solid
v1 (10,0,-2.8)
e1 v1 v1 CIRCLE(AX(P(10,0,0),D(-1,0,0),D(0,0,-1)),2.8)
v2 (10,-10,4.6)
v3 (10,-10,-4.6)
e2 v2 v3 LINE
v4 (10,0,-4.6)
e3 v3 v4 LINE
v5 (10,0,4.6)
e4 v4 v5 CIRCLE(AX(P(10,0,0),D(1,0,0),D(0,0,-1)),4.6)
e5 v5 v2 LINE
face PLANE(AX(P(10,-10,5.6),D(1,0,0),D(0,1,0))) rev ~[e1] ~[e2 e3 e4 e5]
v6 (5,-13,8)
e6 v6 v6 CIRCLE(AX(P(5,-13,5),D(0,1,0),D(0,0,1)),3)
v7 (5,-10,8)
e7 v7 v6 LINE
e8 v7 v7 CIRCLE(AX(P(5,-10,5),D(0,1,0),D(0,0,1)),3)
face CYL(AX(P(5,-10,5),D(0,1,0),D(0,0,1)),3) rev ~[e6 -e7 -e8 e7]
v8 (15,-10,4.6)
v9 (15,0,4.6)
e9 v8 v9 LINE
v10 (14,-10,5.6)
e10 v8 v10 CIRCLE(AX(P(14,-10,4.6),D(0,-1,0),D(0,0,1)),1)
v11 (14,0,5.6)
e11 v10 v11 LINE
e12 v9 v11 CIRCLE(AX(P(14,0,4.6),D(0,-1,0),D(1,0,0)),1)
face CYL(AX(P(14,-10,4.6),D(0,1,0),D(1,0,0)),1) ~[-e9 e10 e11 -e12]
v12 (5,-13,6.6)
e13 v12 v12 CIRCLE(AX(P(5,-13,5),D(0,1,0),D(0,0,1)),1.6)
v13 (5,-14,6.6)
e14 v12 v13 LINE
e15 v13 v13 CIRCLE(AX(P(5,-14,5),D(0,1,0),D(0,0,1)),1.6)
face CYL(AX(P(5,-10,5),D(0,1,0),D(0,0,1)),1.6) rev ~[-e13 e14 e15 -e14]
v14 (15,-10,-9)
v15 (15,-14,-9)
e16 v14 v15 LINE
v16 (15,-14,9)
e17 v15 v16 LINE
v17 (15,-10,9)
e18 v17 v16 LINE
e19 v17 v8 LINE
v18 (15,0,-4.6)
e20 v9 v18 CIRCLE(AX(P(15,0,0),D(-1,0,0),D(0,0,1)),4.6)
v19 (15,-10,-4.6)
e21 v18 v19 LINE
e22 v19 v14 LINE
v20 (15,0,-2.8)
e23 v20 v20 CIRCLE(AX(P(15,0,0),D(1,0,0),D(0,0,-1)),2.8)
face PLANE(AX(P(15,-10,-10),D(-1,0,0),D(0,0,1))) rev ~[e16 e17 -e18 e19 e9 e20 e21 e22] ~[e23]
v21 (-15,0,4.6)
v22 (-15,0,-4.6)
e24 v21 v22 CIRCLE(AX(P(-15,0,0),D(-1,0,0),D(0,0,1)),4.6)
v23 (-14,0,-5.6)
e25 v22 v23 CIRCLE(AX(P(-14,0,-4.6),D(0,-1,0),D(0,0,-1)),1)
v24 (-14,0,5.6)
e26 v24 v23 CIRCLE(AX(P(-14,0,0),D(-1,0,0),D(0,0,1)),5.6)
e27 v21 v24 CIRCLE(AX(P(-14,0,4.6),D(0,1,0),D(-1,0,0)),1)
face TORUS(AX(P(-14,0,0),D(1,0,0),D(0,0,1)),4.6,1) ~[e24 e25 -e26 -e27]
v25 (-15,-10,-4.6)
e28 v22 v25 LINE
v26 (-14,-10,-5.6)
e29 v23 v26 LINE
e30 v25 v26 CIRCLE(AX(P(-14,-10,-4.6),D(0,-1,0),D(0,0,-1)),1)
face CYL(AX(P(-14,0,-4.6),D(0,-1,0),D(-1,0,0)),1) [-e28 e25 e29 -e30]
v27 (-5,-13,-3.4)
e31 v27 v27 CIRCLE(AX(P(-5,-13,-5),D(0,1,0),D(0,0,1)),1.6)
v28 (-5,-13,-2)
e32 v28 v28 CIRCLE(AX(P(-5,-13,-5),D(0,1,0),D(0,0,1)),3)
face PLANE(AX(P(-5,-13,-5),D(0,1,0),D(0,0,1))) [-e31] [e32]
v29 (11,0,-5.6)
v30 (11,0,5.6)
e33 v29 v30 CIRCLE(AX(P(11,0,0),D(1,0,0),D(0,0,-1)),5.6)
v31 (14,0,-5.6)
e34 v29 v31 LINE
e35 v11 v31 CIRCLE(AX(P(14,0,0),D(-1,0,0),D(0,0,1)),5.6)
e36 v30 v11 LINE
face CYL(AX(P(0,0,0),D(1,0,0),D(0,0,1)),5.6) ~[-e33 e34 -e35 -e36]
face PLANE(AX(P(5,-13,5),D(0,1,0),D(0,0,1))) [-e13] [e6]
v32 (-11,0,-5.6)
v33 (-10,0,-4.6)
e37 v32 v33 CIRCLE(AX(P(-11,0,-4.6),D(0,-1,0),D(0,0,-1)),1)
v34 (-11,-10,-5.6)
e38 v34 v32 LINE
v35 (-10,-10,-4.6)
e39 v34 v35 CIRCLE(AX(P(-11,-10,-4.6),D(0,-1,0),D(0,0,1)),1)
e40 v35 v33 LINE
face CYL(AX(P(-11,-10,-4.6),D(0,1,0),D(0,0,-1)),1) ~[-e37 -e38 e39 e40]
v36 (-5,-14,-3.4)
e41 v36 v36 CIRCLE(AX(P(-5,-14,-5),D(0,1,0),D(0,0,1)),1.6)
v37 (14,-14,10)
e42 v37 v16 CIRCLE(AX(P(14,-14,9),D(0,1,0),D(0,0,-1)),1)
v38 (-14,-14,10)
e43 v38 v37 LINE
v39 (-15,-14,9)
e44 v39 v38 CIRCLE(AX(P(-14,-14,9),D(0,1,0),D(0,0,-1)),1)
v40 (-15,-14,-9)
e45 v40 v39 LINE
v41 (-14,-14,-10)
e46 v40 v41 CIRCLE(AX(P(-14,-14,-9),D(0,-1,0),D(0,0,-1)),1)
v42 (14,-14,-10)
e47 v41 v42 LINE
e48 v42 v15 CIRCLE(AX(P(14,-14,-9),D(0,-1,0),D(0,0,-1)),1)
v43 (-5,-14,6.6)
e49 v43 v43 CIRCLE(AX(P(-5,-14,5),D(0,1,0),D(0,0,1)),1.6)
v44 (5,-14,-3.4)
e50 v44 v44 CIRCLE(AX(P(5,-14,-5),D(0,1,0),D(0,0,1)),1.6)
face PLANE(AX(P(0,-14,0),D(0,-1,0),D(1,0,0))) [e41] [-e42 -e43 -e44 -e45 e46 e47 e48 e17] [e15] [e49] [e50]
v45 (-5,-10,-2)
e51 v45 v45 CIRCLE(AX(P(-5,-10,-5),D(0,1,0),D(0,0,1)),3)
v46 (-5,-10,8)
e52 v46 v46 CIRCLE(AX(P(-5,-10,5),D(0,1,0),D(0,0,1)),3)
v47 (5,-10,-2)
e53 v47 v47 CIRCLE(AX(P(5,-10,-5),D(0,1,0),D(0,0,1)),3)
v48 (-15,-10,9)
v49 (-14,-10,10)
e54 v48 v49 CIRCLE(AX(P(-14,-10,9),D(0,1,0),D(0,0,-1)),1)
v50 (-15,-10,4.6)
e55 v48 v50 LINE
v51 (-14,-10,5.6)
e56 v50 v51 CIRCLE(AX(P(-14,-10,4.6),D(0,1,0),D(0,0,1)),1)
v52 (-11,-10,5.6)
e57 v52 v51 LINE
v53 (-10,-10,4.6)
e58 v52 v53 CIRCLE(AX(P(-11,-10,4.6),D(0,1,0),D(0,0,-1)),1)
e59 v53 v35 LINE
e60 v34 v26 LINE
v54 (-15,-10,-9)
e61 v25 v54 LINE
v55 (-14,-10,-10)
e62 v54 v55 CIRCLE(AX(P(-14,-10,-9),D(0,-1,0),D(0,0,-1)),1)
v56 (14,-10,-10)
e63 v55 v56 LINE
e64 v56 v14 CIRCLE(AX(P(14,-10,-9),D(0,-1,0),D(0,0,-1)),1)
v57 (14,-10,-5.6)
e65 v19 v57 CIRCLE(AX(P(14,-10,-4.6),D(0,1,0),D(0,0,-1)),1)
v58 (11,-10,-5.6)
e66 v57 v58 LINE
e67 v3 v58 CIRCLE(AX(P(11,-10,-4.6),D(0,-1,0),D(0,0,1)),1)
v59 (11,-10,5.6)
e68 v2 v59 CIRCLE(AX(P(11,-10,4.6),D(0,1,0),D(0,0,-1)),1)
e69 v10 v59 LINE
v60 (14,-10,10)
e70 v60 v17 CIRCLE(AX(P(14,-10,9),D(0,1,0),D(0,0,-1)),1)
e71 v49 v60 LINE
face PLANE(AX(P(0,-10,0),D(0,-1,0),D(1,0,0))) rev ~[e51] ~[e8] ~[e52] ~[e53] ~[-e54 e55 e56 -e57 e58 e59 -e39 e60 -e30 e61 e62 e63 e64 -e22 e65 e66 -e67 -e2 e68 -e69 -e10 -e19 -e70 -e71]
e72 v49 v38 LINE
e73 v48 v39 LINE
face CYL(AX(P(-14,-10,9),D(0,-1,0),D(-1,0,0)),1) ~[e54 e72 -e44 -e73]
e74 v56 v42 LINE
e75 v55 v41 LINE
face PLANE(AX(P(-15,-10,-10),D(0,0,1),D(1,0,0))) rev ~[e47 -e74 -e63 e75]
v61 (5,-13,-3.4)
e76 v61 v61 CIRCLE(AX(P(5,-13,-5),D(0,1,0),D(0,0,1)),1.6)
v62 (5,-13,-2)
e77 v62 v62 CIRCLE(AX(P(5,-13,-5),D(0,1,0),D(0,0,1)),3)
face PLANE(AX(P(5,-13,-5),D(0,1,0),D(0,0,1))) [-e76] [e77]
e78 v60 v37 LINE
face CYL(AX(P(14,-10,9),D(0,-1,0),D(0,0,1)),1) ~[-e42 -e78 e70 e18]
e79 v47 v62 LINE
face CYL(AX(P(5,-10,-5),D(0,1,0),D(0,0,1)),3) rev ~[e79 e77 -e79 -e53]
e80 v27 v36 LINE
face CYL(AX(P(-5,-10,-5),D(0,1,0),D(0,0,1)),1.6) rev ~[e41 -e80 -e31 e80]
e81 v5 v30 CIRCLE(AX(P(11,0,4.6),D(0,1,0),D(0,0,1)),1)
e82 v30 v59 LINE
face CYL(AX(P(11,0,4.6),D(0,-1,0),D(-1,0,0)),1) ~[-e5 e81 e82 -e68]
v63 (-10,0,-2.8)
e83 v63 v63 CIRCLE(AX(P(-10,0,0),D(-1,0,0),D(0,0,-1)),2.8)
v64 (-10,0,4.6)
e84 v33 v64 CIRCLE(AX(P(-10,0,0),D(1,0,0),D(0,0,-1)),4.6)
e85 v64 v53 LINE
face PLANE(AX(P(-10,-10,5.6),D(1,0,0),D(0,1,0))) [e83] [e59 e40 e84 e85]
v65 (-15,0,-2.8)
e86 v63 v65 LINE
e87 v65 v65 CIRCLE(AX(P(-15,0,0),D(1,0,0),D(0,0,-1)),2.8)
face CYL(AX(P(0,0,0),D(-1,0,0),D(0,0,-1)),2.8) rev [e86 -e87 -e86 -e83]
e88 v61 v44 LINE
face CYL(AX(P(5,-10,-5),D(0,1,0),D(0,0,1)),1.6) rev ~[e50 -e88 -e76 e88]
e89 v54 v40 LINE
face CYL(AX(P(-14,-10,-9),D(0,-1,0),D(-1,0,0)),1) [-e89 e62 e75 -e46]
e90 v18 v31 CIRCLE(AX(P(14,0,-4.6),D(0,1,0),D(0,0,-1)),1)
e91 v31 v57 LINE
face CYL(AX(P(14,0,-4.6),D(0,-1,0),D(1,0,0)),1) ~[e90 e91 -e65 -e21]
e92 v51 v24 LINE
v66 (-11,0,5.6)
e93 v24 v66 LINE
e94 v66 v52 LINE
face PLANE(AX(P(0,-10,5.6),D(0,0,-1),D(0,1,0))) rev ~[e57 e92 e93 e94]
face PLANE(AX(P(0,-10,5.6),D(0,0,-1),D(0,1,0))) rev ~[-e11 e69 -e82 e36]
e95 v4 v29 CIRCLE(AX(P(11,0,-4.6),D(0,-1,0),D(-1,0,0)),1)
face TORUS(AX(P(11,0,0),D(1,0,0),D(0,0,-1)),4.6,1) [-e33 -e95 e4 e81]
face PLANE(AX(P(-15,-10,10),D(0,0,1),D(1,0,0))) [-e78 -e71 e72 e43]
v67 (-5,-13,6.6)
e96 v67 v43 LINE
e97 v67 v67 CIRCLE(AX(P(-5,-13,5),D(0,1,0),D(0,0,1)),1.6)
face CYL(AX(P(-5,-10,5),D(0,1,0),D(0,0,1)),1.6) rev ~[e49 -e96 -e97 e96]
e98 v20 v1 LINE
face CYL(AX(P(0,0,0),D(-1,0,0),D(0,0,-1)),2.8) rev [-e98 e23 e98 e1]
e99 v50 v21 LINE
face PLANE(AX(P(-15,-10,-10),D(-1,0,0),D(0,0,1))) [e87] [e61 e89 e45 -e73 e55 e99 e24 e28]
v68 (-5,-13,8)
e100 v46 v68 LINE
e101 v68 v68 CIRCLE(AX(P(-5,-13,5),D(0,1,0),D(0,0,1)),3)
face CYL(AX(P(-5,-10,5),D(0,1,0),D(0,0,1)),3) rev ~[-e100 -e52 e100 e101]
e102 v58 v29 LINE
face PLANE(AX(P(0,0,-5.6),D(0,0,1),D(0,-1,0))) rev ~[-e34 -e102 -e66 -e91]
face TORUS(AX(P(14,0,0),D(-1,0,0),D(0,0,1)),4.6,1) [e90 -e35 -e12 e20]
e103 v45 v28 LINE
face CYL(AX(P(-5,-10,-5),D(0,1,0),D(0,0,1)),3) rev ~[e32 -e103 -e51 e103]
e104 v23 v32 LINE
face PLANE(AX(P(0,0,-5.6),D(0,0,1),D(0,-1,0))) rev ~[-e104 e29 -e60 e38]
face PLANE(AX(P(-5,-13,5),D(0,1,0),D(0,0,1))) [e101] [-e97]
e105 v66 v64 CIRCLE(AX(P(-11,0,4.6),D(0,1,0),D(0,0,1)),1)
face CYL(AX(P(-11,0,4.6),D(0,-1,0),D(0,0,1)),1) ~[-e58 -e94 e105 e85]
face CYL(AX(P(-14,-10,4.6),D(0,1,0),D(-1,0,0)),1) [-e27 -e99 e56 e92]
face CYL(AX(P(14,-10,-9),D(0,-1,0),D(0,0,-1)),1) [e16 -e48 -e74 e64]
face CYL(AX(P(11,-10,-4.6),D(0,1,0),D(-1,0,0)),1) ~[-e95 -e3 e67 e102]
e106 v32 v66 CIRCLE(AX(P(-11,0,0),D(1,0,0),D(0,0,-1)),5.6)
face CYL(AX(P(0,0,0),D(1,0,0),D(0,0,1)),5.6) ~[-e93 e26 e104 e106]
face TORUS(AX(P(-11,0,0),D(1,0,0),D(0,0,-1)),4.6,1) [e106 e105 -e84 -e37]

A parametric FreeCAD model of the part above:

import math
import FreeCAD as App
import Part
import Sketcher
from FreeCAD import Vector


def edges_at(feature, points):
    """Names of the edges that pass closest to the given points."""
    edges = feature.Shape.Edges
    near = lambda p: min(range(len(edges)), key=lambda i: edges[i].distToShape(Part.Vertex(*p))[0])
    return sorted({f"Edge{near(p) + 1}" for p in points})

doc = App.newDocument("Part")
body = doc.addObject("PartDesign::Body", "Body")

sketch1 = body.newObject("Sketcher::SketchObject", "Sketch")
sketch1.AttachmentSupport = (doc.getObject("YZ_Plane"), [""])
sketch1.MapMode = "FlatFace"
sketch1.addGeometry(Part.LineSegment(Vector(-10, -5.6, 0), Vector(0, -5.6, 0)), False)
sketch1.addGeometry(Part.ArcOfCircle(Part.Circle(Vector(0, 0, 0), Vector(0, 0, 1), 5.6), math.radians(-90), math.radians(90)), False)
sketch1.addGeometry(Part.LineSegment(Vector(0, 5.6, 0), Vector(-10, 5.6, 0)), False)
sketch1.addGeometry(Part.LineSegment(Vector(-10, 5.6, 0), Vector(-10, -5.6, 0)), False)
sketch1.addGeometry(Part.Circle(Vector(0, 0, 0), Vector(0, 0, 1), 2.8), False)
sketch1.addConstraint(Sketcher.Constraint("Tangent", 0, 2, 1, 1))
sketch1.addConstraint(Sketcher.Constraint("Tangent", 1, 2, 2, 1))
sketch1.addConstraint(Sketcher.Constraint("Coincident", 2, 2, 3, 1))
sketch1.addConstraint(Sketcher.Constraint("Coincident", 3, 2, 0, 1))
sketch1.addConstraint(Sketcher.Constraint("Horizontal", 0))
sketch1.addConstraint(Sketcher.Constraint("Horizontal", 2))
sketch1.addConstraint(Sketcher.Constraint("Vertical", 3))
sketch1.addConstraint(Sketcher.Constraint("Coincident", 1, 3, -1, 1))
sketch1.addConstraint(Sketcher.Constraint("Coincident", 4, 3, -1, 1))
sketch1.addConstraint(Sketcher.Constraint("Diameter", 4, 5.6))
sketch1.addConstraint(Sketcher.Constraint("Radius", 1, 5.6))
sketch1.addConstraint(Sketcher.Constraint("DistanceX", 0, 1, 0, 2, 10.0))
pad1 = body.newObject("PartDesign::Pad", "Pad")
pad1.Profile = sketch1
pad1.Length = 30
pad1.Midplane = True

sketch2 = body.newObject("Sketcher::SketchObject", "Sketch001")
sketch2.AttachmentSupport = (doc.getObject("XZ_Plane"), [""])
sketch2.MapMode = "FlatFace"
sketch2.AttachmentOffset = App.Placement(Vector(0, 0, 10), App.Rotation())
sketch2.addGeometry(Part.LineSegment(Vector(-15, 10, 0), Vector(-15, -10, 0)), False)
sketch2.addGeometry(Part.LineSegment(Vector(-15, -10, 0), Vector(15, -10, 0)), False)
sketch2.addGeometry(Part.LineSegment(Vector(15, -10, 0), Vector(15, 10, 0)), False)
sketch2.addGeometry(Part.LineSegment(Vector(15, 10, 0), Vector(-15, 10, 0)), False)
sketch2.addConstraint(Sketcher.Constraint("Coincident", 0, 2, 1, 1))
sketch2.addConstraint(Sketcher.Constraint("Coincident", 1, 2, 2, 1))
sketch2.addConstraint(Sketcher.Constraint("Coincident", 2, 2, 3, 1))
sketch2.addConstraint(Sketcher.Constraint("Coincident", 3, 2, 0, 1))
sketch2.addConstraint(Sketcher.Constraint("Vertical", 0))
sketch2.addConstraint(Sketcher.Constraint("Horizontal", 1))
sketch2.addConstraint(Sketcher.Constraint("Vertical", 2))
sketch2.addConstraint(Sketcher.Constraint("Horizontal", 3))
sketch2.addConstraint(Sketcher.Constraint("Symmetric", 0, 2, 2, 2, -1, 1))
sketch2.addConstraint(Sketcher.Constraint("DistanceX", 1, 1, 1, 2, 30.0))
sketch2.addConstraint(Sketcher.Constraint("DistanceY", 0, 2, 0, 1, 20.0))
pad2 = body.newObject("PartDesign::Pad", "Pad001")
pad2.Profile = sketch2
pad2.Length = 4

sketch3 = body.newObject("Sketcher::SketchObject", "Sketch002")
sketch3.AttachmentSupport = (doc.getObject("XZ_Plane"), [""])
sketch3.MapMode = "FlatFace"
sketch3.AttachmentOffset = App.Placement(Vector(0, 0, 10), App.Rotation())
sketch3.addGeometry(Part.Circle(Vector(5, 5, 0), Vector(0, 0, 1), 1.6), False)
sketch3.addConstraint(Sketcher.Constraint("Diameter", 0, 3.2))
sketch3.addConstraint(Sketcher.Constraint("DistanceX", -1, 1, 0, 3, 5.0))
sketch3.addConstraint(Sketcher.Constraint("DistanceY", -1, 1, 0, 3, 5.0))
pocket1 = body.newObject("PartDesign::Pocket", "Pocket")
pocket1.Profile = sketch3
pocket1.Type = "UpToFirst"
pocket1.Reversed = True

sketch4 = body.newObject("Sketcher::SketchObject", "Sketch003")
sketch4.AttachmentSupport = (doc.getObject("XZ_Plane"), [""])
sketch4.MapMode = "FlatFace"
sketch4.AttachmentOffset = App.Placement(Vector(0, 0, 10), App.Rotation())
sketch4.addGeometry(Part.Circle(Vector(5, -5, 0), Vector(0, 0, 1), 1.6), False)
sketch4.addConstraint(Sketcher.Constraint("Diameter", 0, 3.2))
sketch4.addConstraint(Sketcher.Constraint("DistanceX", -1, 1, 0, 3, 5.0))
sketch4.addConstraint(Sketcher.Constraint("DistanceY", 0, 3, -1, 1, 5.0))
pocket2 = body.newObject("PartDesign::Pocket", "Pocket001")
pocket2.Profile = sketch4
pocket2.Type = "UpToFirst"
pocket2.Reversed = True

sketch5 = body.newObject("Sketcher::SketchObject", "Sketch004")
sketch5.AttachmentSupport = (doc.getObject("XZ_Plane"), [""])
sketch5.MapMode = "FlatFace"
sketch5.AttachmentOffset = App.Placement(Vector(0, 0, 10), App.Rotation())
sketch5.addGeometry(Part.Circle(Vector(-5, -5, 0), Vector(0, 0, 1), 1.6), False)
sketch5.addConstraint(Sketcher.Constraint("Diameter", 0, 3.2))
sketch5.addConstraint(Sketcher.Constraint("DistanceX", 0, 3, -1, 1, 5.0))
sketch5.addConstraint(Sketcher.Constraint("DistanceY", 0, 3, -1, 1, 5.0))
pocket3 = body.newObject("PartDesign::Pocket", "Pocket002")
pocket3.Profile = sketch5
pocket3.Type = "UpToFirst"
pocket3.Reversed = True

sketch6 = body.newObject("Sketcher::SketchObject", "Sketch005")
sketch6.AttachmentSupport = (doc.getObject("XZ_Plane"), [""])
sketch6.MapMode = "FlatFace"
sketch6.AttachmentOffset = App.Placement(Vector(0, 0, 10), App.Rotation())
sketch6.addGeometry(Part.Circle(Vector(-5, 5, 0), Vector(0, 0, 1), 1.6), False)
sketch6.addConstraint(Sketcher.Constraint("Diameter", 0, 3.2))
sketch6.addConstraint(Sketcher.Constraint("DistanceX", 0, 3, -1, 1, 5.0))
sketch6.addConstraint(Sketcher.Constraint("DistanceY", -1, 1, 0, 3, 5.0))
pocket4 = body.newObject("PartDesign::Pocket", "Pocket003")
pocket4.Profile = sketch6
pocket4.Type = "UpToFirst"
pocket4.Reversed = True

sketch7 = body.newObject("Sketcher::SketchObject", "Sketch006")
sketch7.AttachmentSupport = (doc.getObject("XY_Plane"), [""])
sketch7.MapMode = "FlatFace"
sketch7.AttachmentOffset = App.Placement(Vector(0, 0, 5.6), App.Rotation())
sketch7.addGeometry(Part.LineSegment(Vector(-10, 12, 0), Vector(-10, -10, 0)), False)
sketch7.addGeometry(Part.LineSegment(Vector(-10, -10, 0), Vector(10, -10, 0)), False)
sketch7.addGeometry(Part.LineSegment(Vector(10, -10, 0), Vector(10, 12, 0)), False)
sketch7.addGeometry(Part.LineSegment(Vector(10, 12, 0), Vector(-10, 12, 0)), False)
sketch7.addConstraint(Sketcher.Constraint("Coincident", 0, 2, 1, 1))
sketch7.addConstraint(Sketcher.Constraint("Coincident", 1, 2, 2, 1))
sketch7.addConstraint(Sketcher.Constraint("Coincident", 2, 2, 3, 1))
sketch7.addConstraint(Sketcher.Constraint("Coincident", 3, 2, 0, 1))
sketch7.addConstraint(Sketcher.Constraint("Vertical", 0))
sketch7.addConstraint(Sketcher.Constraint("Horizontal", 1))
sketch7.addConstraint(Sketcher.Constraint("Vertical", 2))
sketch7.addConstraint(Sketcher.Constraint("Horizontal", 3))
sketch7.addConstraint(Sketcher.Constraint("DistanceX", 1, 1, 1, 2, 20.0))
sketch7.addConstraint(Sketcher.Constraint("DistanceX", 0, 2, -1, 1, 10.0))
sketch7.addConstraint(Sketcher.Constraint("DistanceY", 0, 2, -1, 1, 10.0))
sketch7.addConstraint(Sketcher.Constraint("DistanceY", 0, 2, 0, 1, 21.54371))
pocket5 = body.newObject("PartDesign::Pocket", "Pocket004")
pocket5.Profile = sketch7
pocket5.Type = "ThroughAll"

sketch8 = body.newObject("Sketcher::SketchObject", "Sketch007")
sketch8.AttachmentSupport = (doc.getObject("XZ_Plane"), [""])
sketch8.MapMode = "FlatFace"
sketch8.AttachmentOffset = App.Placement(Vector(0, 0, 10), App.Rotation())
sketch8.addGeometry(Part.Circle(Vector(-5, -5, 0), Vector(0, 0, 1), 3), False)
sketch8.addGeometry(Part.Circle(Vector(5, -5, 0), Vector(0, 0, 1), 3), False)
sketch8.addGeometry(Part.Circle(Vector(5, 5, 0), Vector(0, 0, 1), 3), False)
sketch8.addGeometry(Part.Circle(Vector(-5, 5, 0), Vector(0, 0, 1), 3), False)
sketch8.addConstraint(Sketcher.Constraint("Equal", 0, 1))
sketch8.addConstraint(Sketcher.Constraint("Equal", 1, 2))
sketch8.addConstraint(Sketcher.Constraint("Equal", 2, 3))
sketch8.addConstraint(Sketcher.Constraint("Symmetric", 0, 3, 2, 3, -1, 1))
sketch8.addConstraint(Sketcher.Constraint("Symmetric", 1, 3, 3, 3, -1, 1))
sketch8.addConstraint(Sketcher.Constraint("Symmetric", 0, 3, 1, 3, -2))
sketch8.addConstraint(Sketcher.Constraint("Diameter", 0, 6.0))
sketch8.addConstraint(Sketcher.Constraint("DistanceX", 0, 3, -1, 1, 5.0))
sketch8.addConstraint(Sketcher.Constraint("DistanceY", 0, 3, -1, 1, 5.0))
pocket6 = body.newObject("PartDesign::Pocket", "Pocket005")
pocket6.Profile = sketch8
pocket6.Length = 3
pocket6.Reversed = True
doc.recompute()

fillet = body.newObject("PartDesign::Fillet", "Fillet")
fillet.Base = (pocket6, edges_at(pocket6, [
    (15, -5, -5.6),
    (-15, -12, 10),
    (-15, -12, -10),
    (15, -12, -10),
    (15, -12, 10),
    (15, 5.6, 0),
    (-15, -5, -5.6),
    (-15, -5, 5.6),
    (-15, 5.6, 0),
    (-10, 5.6, 0),
    (-10, -5, -5.6),
    (10, -5, -5.6),
    (10, 5.6, 0),
    (10, -5, 5.6),
    (-10, -5, 5.6),
    (15, -5, 5.6),
]))
fillet.Radius = 1

doc.recompute()
